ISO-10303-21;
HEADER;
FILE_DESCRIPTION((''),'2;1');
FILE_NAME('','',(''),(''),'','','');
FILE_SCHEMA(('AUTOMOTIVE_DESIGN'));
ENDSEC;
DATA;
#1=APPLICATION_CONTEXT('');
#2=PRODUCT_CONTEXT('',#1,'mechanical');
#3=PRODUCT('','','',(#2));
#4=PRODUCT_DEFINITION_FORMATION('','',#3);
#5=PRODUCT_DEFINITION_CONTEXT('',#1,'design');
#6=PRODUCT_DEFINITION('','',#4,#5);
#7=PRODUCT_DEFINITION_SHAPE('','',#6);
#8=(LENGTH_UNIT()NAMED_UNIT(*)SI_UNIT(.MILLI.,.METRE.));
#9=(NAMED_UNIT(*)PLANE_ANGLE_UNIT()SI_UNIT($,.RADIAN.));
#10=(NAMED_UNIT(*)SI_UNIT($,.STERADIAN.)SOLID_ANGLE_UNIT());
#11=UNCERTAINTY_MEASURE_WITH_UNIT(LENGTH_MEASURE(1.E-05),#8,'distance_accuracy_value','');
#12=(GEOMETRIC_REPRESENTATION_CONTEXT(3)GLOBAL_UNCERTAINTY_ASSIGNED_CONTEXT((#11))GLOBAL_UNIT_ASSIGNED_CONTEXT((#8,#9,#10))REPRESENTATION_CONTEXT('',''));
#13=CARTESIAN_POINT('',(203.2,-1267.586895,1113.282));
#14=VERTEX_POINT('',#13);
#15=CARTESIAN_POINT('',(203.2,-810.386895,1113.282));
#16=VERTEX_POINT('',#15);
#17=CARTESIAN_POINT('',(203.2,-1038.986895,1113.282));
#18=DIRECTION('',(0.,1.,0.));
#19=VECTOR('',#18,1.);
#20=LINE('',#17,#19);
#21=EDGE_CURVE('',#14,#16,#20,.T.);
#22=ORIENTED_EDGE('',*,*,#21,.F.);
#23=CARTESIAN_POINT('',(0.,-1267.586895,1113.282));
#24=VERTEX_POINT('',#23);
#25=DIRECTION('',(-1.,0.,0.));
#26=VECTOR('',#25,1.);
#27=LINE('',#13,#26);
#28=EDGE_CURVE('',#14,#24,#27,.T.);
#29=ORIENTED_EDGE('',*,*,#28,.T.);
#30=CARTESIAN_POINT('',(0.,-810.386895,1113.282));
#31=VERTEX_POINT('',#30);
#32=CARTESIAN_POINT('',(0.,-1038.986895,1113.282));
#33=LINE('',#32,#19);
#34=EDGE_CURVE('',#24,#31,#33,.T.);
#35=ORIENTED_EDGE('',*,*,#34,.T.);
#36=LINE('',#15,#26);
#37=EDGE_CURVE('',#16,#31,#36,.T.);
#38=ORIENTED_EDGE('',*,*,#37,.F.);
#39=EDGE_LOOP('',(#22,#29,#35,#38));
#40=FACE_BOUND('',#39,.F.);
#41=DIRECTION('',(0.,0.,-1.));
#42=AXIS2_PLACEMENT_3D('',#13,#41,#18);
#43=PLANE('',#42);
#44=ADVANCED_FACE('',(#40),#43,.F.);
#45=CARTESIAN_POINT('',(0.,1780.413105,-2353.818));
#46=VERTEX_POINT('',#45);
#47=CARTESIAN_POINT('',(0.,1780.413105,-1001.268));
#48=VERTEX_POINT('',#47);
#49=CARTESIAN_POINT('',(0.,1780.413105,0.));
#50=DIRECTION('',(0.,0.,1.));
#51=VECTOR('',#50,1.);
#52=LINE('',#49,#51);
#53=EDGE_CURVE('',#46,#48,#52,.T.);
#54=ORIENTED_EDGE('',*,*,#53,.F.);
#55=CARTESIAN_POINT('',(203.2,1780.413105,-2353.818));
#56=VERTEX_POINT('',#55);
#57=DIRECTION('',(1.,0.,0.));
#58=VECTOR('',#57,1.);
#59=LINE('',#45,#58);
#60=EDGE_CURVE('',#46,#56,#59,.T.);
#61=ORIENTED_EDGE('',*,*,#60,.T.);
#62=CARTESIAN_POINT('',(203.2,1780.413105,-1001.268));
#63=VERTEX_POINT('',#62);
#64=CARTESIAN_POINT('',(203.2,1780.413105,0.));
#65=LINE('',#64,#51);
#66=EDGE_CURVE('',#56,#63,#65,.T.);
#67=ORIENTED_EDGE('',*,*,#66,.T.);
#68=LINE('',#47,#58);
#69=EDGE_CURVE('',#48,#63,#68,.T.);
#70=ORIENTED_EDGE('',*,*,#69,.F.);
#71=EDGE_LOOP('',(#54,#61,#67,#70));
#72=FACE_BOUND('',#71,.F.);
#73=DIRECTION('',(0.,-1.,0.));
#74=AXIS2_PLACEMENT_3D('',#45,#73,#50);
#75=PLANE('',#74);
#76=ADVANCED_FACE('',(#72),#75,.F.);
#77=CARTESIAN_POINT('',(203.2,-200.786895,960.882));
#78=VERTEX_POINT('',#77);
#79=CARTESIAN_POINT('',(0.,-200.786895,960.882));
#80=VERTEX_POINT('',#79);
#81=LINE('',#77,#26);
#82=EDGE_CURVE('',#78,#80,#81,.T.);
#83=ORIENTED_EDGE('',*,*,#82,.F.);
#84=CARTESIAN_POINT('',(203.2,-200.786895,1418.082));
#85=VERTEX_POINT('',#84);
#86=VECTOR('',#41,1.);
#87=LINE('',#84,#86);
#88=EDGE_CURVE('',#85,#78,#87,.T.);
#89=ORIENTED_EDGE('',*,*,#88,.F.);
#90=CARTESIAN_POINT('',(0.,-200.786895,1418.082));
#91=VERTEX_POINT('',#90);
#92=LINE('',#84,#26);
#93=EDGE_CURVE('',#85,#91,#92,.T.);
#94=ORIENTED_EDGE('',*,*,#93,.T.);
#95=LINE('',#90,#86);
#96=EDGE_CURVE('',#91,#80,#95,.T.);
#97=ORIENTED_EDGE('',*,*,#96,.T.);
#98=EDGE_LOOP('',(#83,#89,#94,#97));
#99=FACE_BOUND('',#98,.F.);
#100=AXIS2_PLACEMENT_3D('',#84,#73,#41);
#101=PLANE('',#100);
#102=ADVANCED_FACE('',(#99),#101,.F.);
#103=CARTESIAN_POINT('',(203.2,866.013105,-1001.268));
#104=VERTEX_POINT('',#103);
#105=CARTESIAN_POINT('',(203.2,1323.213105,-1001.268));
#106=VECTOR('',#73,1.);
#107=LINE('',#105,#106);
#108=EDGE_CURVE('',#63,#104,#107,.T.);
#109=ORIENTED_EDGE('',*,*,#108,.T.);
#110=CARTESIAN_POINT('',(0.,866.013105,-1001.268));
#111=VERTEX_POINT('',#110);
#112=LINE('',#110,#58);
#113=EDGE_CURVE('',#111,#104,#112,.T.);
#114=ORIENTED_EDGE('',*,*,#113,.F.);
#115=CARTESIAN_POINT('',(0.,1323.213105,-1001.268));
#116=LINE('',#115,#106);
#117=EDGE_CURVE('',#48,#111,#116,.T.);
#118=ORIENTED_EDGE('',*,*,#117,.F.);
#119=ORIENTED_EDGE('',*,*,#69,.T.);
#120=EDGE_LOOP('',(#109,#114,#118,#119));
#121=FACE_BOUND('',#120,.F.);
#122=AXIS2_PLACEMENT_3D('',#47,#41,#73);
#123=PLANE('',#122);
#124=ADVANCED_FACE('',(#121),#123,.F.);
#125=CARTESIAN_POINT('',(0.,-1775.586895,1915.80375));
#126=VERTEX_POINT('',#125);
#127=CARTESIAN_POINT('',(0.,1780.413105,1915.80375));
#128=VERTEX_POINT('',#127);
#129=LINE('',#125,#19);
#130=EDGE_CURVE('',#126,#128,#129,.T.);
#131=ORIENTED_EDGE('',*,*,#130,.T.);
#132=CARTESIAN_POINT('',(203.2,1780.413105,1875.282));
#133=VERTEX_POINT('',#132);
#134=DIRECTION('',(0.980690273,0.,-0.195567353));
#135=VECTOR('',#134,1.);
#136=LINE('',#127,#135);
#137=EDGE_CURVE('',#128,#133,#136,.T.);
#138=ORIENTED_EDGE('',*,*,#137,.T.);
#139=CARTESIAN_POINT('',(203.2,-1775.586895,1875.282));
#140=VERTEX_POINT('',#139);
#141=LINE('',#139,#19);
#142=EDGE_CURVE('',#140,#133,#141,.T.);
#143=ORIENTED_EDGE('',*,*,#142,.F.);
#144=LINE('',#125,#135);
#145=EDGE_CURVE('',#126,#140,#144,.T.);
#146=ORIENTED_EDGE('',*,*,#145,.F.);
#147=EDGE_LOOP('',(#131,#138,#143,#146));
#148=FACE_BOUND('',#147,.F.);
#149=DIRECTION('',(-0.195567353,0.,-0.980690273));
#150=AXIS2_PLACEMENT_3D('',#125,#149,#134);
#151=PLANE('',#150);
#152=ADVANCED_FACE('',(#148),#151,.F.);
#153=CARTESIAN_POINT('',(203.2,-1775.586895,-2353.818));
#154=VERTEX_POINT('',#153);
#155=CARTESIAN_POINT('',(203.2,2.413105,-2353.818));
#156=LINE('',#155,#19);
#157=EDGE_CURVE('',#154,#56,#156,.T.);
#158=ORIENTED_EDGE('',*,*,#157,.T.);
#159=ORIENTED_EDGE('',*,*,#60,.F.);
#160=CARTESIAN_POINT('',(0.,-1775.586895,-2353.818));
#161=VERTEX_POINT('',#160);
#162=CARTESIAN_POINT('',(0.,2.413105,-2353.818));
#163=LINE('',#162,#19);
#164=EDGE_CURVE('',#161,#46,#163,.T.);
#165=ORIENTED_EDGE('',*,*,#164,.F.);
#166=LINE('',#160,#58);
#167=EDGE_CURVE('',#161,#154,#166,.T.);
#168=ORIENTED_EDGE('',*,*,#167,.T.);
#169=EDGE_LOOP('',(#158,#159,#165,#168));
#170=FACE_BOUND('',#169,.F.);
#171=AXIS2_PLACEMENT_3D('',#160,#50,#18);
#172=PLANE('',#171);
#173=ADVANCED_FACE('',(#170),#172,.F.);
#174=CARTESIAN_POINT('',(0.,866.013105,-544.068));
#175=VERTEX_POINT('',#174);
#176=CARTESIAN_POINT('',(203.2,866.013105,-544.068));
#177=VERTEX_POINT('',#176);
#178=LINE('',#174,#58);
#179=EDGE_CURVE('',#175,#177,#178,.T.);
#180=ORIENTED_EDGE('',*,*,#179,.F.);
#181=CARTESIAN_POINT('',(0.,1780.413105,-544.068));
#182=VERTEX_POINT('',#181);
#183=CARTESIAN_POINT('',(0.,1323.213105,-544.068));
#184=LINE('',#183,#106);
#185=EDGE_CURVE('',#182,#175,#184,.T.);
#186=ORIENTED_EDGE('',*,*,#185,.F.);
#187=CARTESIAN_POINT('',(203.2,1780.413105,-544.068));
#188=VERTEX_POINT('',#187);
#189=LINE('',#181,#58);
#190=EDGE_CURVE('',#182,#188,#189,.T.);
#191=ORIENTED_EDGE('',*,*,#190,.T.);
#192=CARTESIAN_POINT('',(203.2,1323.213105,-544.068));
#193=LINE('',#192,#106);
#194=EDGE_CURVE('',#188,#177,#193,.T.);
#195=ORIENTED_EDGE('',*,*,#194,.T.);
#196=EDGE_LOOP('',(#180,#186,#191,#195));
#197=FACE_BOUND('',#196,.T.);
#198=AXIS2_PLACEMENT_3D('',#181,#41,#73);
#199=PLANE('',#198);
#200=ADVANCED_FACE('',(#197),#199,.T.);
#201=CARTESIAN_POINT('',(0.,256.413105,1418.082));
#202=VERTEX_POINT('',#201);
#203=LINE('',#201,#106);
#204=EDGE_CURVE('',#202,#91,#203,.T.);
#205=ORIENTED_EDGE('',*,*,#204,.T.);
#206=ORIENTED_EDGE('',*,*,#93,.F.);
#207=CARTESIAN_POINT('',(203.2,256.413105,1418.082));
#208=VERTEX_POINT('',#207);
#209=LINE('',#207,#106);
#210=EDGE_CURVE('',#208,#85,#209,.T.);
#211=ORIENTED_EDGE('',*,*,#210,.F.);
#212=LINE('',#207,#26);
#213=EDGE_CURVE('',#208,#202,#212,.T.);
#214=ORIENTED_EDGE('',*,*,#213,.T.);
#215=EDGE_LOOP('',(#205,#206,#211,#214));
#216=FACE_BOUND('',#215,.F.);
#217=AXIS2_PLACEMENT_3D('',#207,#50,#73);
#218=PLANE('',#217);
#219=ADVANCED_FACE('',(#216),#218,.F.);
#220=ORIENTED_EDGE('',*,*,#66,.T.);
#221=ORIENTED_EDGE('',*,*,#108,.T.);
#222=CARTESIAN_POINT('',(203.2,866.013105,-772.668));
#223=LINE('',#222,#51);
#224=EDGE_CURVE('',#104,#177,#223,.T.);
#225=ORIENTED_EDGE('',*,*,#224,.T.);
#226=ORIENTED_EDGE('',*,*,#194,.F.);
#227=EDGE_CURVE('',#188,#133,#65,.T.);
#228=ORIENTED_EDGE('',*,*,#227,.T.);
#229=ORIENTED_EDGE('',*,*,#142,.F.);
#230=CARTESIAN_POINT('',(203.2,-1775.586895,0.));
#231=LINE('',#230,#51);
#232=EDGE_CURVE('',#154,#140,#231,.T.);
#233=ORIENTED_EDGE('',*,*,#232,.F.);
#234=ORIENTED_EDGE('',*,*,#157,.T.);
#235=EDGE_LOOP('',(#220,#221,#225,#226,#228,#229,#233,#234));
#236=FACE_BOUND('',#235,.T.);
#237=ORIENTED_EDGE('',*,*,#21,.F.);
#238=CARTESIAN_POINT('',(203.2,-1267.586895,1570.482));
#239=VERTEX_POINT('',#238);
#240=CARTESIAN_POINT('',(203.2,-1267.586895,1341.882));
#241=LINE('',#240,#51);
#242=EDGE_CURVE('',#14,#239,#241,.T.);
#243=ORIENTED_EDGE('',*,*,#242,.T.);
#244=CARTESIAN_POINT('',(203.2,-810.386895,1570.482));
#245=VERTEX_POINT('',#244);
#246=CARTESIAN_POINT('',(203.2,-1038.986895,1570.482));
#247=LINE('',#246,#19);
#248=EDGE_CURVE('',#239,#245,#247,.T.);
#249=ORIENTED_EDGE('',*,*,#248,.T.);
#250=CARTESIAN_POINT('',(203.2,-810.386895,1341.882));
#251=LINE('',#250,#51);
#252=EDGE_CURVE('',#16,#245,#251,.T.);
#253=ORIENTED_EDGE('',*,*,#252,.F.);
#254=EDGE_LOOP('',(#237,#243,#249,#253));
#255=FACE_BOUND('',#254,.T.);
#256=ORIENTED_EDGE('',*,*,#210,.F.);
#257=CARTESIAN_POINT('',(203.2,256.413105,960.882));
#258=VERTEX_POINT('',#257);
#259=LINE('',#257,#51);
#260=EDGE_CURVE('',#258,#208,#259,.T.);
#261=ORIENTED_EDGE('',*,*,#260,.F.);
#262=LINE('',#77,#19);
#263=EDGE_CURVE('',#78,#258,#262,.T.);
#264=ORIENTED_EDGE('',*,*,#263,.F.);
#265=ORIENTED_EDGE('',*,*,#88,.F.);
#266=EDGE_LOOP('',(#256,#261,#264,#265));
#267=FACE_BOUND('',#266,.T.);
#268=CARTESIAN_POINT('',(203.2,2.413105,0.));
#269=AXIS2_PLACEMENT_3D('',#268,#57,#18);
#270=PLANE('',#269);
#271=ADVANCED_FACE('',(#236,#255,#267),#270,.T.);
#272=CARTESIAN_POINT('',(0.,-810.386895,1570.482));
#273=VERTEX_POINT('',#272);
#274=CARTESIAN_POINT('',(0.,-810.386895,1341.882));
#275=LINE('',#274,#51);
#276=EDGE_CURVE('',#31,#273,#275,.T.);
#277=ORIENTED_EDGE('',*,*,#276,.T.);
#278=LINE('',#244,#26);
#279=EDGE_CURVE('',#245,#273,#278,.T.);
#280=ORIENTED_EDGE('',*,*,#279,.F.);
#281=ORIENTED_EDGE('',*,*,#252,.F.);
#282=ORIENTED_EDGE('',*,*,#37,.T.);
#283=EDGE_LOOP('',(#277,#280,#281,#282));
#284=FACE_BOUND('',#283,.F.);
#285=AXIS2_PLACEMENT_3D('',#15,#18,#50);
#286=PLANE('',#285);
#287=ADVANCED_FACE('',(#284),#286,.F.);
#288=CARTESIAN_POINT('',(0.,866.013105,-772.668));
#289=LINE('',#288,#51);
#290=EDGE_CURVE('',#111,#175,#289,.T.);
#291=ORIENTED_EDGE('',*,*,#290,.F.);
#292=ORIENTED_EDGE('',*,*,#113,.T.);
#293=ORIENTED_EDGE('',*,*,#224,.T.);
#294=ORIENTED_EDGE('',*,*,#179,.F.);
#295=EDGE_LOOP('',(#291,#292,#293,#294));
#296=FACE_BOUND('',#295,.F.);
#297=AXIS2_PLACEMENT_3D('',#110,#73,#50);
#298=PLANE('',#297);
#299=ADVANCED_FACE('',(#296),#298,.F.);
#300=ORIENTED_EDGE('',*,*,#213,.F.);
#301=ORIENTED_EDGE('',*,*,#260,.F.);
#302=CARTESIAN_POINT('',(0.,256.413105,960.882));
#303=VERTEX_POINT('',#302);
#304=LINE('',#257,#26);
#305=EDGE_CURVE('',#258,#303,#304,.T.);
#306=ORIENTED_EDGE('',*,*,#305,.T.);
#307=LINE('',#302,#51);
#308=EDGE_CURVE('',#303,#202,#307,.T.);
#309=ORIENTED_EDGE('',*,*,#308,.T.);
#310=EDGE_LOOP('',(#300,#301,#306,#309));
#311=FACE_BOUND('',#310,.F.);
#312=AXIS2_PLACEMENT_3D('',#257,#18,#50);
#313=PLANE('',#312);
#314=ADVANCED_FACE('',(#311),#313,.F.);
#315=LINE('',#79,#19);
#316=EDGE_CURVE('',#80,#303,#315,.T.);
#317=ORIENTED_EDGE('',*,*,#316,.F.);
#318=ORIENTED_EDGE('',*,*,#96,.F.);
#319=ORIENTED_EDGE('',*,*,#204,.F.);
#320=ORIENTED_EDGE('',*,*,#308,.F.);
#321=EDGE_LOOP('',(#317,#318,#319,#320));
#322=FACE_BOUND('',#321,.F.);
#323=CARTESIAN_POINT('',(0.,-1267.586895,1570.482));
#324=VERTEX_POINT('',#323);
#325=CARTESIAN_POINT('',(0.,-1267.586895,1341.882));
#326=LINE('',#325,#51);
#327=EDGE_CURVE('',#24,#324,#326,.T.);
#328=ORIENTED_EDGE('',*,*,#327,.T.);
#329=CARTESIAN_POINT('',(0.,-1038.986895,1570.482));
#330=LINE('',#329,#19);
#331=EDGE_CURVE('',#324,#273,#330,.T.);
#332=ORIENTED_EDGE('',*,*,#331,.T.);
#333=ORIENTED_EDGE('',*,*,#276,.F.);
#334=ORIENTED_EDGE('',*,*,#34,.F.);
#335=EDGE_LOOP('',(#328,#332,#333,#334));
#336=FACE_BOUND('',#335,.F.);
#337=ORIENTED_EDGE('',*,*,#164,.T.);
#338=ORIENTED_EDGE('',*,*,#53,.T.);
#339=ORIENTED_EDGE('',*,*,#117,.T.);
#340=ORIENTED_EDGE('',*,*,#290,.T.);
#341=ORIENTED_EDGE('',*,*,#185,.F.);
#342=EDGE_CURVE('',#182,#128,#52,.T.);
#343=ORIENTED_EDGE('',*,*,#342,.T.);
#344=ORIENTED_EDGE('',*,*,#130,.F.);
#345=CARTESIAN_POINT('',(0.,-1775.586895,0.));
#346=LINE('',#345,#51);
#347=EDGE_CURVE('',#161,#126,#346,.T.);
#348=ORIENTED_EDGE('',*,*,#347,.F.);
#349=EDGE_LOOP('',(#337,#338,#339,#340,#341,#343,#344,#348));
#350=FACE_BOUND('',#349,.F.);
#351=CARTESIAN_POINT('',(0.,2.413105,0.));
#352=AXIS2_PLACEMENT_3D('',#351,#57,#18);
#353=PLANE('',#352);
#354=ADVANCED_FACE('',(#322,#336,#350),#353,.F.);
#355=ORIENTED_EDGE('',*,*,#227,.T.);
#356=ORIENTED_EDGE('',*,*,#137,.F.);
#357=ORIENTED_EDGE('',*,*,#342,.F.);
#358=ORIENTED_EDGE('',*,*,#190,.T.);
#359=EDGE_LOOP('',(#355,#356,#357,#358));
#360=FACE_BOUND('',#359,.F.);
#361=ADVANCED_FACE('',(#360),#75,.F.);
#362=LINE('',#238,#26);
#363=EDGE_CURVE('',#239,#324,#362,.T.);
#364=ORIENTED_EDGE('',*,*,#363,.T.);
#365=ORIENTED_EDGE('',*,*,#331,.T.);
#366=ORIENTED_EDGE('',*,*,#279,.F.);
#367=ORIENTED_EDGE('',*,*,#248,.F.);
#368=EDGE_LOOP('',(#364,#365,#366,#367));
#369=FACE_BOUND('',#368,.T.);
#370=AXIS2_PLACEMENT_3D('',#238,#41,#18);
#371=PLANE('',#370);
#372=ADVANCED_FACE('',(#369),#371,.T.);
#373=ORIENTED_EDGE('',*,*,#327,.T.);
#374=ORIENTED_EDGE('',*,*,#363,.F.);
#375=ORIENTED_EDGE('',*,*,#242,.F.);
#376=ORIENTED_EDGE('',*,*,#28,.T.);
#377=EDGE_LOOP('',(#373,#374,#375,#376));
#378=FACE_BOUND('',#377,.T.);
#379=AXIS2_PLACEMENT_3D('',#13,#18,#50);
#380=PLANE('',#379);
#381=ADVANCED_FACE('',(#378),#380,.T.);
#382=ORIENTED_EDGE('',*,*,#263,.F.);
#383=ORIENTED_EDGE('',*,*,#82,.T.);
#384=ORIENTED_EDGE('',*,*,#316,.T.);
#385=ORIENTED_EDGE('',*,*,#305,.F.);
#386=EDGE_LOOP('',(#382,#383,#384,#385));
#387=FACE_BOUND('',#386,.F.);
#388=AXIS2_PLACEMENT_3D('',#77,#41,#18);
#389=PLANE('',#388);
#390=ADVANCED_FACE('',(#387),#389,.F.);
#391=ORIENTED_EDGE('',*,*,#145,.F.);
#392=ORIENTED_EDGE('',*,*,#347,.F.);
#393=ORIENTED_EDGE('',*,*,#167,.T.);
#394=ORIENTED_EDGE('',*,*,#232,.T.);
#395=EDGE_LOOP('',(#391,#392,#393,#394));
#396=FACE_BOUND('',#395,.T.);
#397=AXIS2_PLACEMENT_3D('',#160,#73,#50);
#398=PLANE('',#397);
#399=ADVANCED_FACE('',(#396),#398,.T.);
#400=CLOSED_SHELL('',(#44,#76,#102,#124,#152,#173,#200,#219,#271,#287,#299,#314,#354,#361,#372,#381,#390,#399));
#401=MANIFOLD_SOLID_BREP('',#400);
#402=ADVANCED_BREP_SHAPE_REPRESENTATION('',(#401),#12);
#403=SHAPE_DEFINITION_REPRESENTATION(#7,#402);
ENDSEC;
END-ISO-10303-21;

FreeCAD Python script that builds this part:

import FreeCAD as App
import Part
import Sketcher

V = App.Vector
Q = App.Units.Quantity

doc = App.newDocument("Part")
body = doc.addObject("PartDesign::Body", "Body")

# Sketch on YZ plane
sketch1 = doc.addObject("Sketcher::SketchObject", "Sketch")
body.addObject(sketch1)
sketch1.AttachmentSupport = (doc.YZ_Plane, [""])
sketch1.MapMode = "FlatFace"
sketch1.addGeometry([
    Part.LineSegment(V(-1775.586895, 2353.818, 0), V(-1775.586895, -2353.818, 0)),
    Part.LineSegment(V(-1775.586895, -2353.818, 0), V(1780.413105, -2353.818, 0)),
    Part.LineSegment(V(1780.413105, -2353.818, 0), V(1780.413105, 2353.818, 0)),
    Part.LineSegment(V(1780.413105, 2353.818, 0), V(-1775.586895, 2353.818, 0)),
], False)
sketch1.addConstraint([
    Sketcher.Constraint("Coincident", 0, 2, 1, 1),
    Sketcher.Constraint("Coincident", 1, 2, 2, 1),
    Sketcher.Constraint("Coincident", 2, 2, 3, 1),
    Sketcher.Constraint("Coincident", 3, 2, 0, 1),
    Sketcher.Constraint("Vertical", 0),
    Sketcher.Constraint("Horizontal", 1),
    Sketcher.Constraint("Vertical", 2),
    Sketcher.Constraint("Horizontal", 3),
    Sketcher.Constraint("DistanceX", 1, 1, 1, 2, Q("140 in")),
    Sketcher.Constraint("DistanceY", 0, 2, 0, 1, Q("185.34 in")),
    Sketcher.Constraint("DistanceY", 0, 2, -1, 1, Q("92.67 in")),
    Sketcher.Constraint("DistanceX", 0, 2, -1, 1, 1775.586895),
])
pad1 = doc.addObject("PartDesign::Pad", "Pad")
body.addObject(pad1)
pad1.Profile = sketch1
pad1.Length = Q("8 in")

# Sketch on XZ plane
sketch2 = doc.addObject("Sketcher::SketchObject", "Sketch001")
body.addObject(sketch2)
sketch2.AttachmentSupport = (doc.XZ_Plane, [""])
sketch2.MapMode = "FlatFace"
sketch2.AttachmentOffset = App.Placement(V(0, 0, 1775.586895), App.Rotation())
sketch2.addGeometry([
    Part.LineSegment(V(0, 1915.80375, 0), V(203.2, 1875.282, 0)),
    Part.LineSegment(V(203.2, 1875.282, 0), V(203.2, 2353.818, 0)),
    Part.LineSegment(V(203.2, 2353.818, 0), V(0, 2353.818, 0)),
    Part.LineSegment(V(0, 2353.818, 0), V(0, 1915.80375, 0)),
], False)
sketch2.addConstraint([
    Sketcher.Constraint("Coincident", 0, 2, 1, 1),
    Sketcher.Constraint("Coincident", 1, 2, 2, 1),
    Sketcher.Constraint("Coincident", 2, 2, 3, 1),
    Sketcher.Constraint("Coincident", 3, 2, 0, 1),
    Sketcher.Constraint("Vertical", 1),
    Sketcher.Constraint("Horizontal", 2),
    Sketcher.Constraint("Vertical", 3),
    Sketcher.Constraint("PointOnObject", 2, 2, -2),
    Sketcher.Constraint("DistanceX", 2, 2, 2, 1, Q("8 in")),
    Sketcher.Constraint("DistanceY", 1, 1, 1, 2, Q("18.84 in")),
    Sketcher.Constraint("DistanceY", -1, 1, 0, 2, Q("73.83 in")),
    Sketcher.Constraint("DistanceY", 3, 2, 3, 1, 438.01425),
])
pocket1 = doc.addObject("PartDesign::Pocket", "Pocket")
body.addObject(pocket1)
pocket1.Profile = sketch2
pocket1.Length = Q("140 in")

# Sketch on YZ plane
sketch3 = doc.addObject("Sketcher::SketchObject", "Sketch002")
body.addObject(sketch3)
sketch3.AttachmentSupport = (doc.YZ_Plane, [""])
sketch3.MapMode = "FlatFace"
sketch3.addGeometry([
    Part.LineSegment(V(1780.413105, -544.068, 0), V(1780.413105, -1001.268, 0)),
    Part.LineSegment(V(1780.413105, -1001.268, 0), V(866.013105, -1001.268, 0)),
    Part.LineSegment(V(866.013105, -1001.268, 0), V(866.013105, -544.068, 0)),
    Part.LineSegment(V(866.013105, -544.068, 0), V(1780.413105, -544.068, 0)),
], False)
sketch3.addConstraint([
    Sketcher.Constraint("Coincident", 0, 2, 1, 1),
    Sketcher.Constraint("Coincident", 1, 2, 2, 1),
    Sketcher.Constraint("Coincident", 2, 2, 3, 1),
    Sketcher.Constraint("Coincident", 3, 2, 0, 1),
    Sketcher.Constraint("Vertical", 0),
    Sketcher.Constraint("Horizontal", 1),
    Sketcher.Constraint("Vertical", 2),
    Sketcher.Constraint("Horizontal", 3),
    Sketcher.Constraint("DistanceX", 1, 2, 1, 1, Q("36 in")),
    Sketcher.Constraint("DistanceY", 0, 2, 0, 1, Q("18 in")),
    Sketcher.Constraint("DistanceY", 0, 2, -1, 1, Q("39.42 in")),
    Sketcher.Constraint("DistanceX", -1, 1, 0, 2, 1780.413105),
])
pocket2 = doc.addObject("PartDesign::Pocket", "Pocket001")
body.addObject(pocket2)
pocket2.Profile = sketch3
pocket2.Length = Q("8 in")
pocket2.Reversed = True

# Sketch on YZ plane
sketch4 = doc.addObject("Sketcher::SketchObject", "Sketch003")
body.addObject(sketch4)
sketch4.AttachmentSupport = (doc.YZ_Plane, [""])
sketch4.MapMode = "FlatFace"
sketch4.AttachmentOffset = App.Placement(V(0, 0, 8 * 25.4), App.Rotation())
sketch4.addGeometry([
    Part.LineSegment(V(-1267.586895, 1570.482, 0), V(-1267.586895, 1113.282, 0)),
    Part.LineSegment(V(-1267.586895, 1113.282, 0), V(-810.386895, 1113.282, 0)),
    Part.LineSegment(V(-810.386895, 1113.282, 0), V(-810.386895, 1570.482, 0)),
    Part.LineSegment(V(-810.386895, 1570.482, 0), V(-1267.586895, 1570.482, 0)),
], False)
sketch4.addConstraint([
    Sketcher.Constraint("Coincident", 0, 2, 1, 1),
    Sketcher.Constraint("Coincident", 1, 2, 2, 1),
    Sketcher.Constraint("Coincident", 2, 2, 3, 1),
    Sketcher.Constraint("Coincident", 3, 2, 0, 1),
    Sketcher.Constraint("Vertical", 0),
    Sketcher.Constraint("Horizontal", 1),
    Sketcher.Constraint("Vertical", 2),
    Sketcher.Constraint("Horizontal", 3),
    Sketcher.Constraint("Equal", 3, 0),
    Sketcher.Constraint("DistanceX", 1, 1, 1, 2, Q("18 in")),
    Sketcher.Constraint("DistanceY", -1, 1, 0, 2, Q("43.83 in")),
    Sketcher.Constraint("DistanceX", 0, 2, -1, 1, 1267.586895),
])
pocket3 = doc.addObject("PartDesign::Pocket", "Pocket002")
body.addObject(pocket3)
pocket3.Profile = sketch4
pocket3.Length = Q("8 in")

# Sketch on YZ plane
sketch5 = doc.addObject("Sketcher::SketchObject", "Sketch004")
body.addObject(sketch5)
sketch5.AttachmentSupport = (doc.YZ_Plane, [""])
sketch5.MapMode = "FlatFace"
sketch5.AttachmentOffset = App.Placement(V(0, 0, 8 * 25.4), App.Rotation())
sketch5.addGeometry([
    Part.LineSegment(V(-200.786895, 1418.082, 0), V(-200.786895, 960.882, 0)),
    Part.LineSegment(V(-200.786895, 960.882, 0), V(256.413105, 960.882, 0)),
    Part.LineSegment(V(256.413105, 960.882, 0), V(256.413105, 1418.082, 0)),
    Part.LineSegment(V(256.413105, 1418.082, 0), V(-200.786895, 1418.082, 0)),
], False)
sketch5.addConstraint([
    Sketcher.Constraint("Coincident", 0, 2, 1, 1),
    Sketcher.Constraint("Coincident", 1, 2, 2, 1),
    Sketcher.Constraint("Coincident", 2, 2, 3, 1),
    Sketcher.Constraint("Coincident", 3, 2, 0, 1),
    Sketcher.Constraint("Vertical", 0),
    Sketcher.Constraint("Horizontal", 1),
    Sketcher.Constraint("Vertical", 2),
    Sketcher.Constraint("Horizontal", 3),
    Sketcher.Constraint("Equal", 3, 0),
    Sketcher.Constraint("DistanceX", 1, 1, 1, 2, Q("18 in")),
    Sketcher.Constraint("DistanceY", -1, 1, 0, 2, Q("37.83 in")),
    Sketcher.Constraint("DistanceX", 0, 2, -1, 1, 200.786895),
])
pocket4 = doc.addObject("PartDesign::Pocket", "Pocket003")
body.addObject(pocket4)
pocket4.Profile = sketch5
pocket4.Length = Q("8 in")

doc.recompute()
